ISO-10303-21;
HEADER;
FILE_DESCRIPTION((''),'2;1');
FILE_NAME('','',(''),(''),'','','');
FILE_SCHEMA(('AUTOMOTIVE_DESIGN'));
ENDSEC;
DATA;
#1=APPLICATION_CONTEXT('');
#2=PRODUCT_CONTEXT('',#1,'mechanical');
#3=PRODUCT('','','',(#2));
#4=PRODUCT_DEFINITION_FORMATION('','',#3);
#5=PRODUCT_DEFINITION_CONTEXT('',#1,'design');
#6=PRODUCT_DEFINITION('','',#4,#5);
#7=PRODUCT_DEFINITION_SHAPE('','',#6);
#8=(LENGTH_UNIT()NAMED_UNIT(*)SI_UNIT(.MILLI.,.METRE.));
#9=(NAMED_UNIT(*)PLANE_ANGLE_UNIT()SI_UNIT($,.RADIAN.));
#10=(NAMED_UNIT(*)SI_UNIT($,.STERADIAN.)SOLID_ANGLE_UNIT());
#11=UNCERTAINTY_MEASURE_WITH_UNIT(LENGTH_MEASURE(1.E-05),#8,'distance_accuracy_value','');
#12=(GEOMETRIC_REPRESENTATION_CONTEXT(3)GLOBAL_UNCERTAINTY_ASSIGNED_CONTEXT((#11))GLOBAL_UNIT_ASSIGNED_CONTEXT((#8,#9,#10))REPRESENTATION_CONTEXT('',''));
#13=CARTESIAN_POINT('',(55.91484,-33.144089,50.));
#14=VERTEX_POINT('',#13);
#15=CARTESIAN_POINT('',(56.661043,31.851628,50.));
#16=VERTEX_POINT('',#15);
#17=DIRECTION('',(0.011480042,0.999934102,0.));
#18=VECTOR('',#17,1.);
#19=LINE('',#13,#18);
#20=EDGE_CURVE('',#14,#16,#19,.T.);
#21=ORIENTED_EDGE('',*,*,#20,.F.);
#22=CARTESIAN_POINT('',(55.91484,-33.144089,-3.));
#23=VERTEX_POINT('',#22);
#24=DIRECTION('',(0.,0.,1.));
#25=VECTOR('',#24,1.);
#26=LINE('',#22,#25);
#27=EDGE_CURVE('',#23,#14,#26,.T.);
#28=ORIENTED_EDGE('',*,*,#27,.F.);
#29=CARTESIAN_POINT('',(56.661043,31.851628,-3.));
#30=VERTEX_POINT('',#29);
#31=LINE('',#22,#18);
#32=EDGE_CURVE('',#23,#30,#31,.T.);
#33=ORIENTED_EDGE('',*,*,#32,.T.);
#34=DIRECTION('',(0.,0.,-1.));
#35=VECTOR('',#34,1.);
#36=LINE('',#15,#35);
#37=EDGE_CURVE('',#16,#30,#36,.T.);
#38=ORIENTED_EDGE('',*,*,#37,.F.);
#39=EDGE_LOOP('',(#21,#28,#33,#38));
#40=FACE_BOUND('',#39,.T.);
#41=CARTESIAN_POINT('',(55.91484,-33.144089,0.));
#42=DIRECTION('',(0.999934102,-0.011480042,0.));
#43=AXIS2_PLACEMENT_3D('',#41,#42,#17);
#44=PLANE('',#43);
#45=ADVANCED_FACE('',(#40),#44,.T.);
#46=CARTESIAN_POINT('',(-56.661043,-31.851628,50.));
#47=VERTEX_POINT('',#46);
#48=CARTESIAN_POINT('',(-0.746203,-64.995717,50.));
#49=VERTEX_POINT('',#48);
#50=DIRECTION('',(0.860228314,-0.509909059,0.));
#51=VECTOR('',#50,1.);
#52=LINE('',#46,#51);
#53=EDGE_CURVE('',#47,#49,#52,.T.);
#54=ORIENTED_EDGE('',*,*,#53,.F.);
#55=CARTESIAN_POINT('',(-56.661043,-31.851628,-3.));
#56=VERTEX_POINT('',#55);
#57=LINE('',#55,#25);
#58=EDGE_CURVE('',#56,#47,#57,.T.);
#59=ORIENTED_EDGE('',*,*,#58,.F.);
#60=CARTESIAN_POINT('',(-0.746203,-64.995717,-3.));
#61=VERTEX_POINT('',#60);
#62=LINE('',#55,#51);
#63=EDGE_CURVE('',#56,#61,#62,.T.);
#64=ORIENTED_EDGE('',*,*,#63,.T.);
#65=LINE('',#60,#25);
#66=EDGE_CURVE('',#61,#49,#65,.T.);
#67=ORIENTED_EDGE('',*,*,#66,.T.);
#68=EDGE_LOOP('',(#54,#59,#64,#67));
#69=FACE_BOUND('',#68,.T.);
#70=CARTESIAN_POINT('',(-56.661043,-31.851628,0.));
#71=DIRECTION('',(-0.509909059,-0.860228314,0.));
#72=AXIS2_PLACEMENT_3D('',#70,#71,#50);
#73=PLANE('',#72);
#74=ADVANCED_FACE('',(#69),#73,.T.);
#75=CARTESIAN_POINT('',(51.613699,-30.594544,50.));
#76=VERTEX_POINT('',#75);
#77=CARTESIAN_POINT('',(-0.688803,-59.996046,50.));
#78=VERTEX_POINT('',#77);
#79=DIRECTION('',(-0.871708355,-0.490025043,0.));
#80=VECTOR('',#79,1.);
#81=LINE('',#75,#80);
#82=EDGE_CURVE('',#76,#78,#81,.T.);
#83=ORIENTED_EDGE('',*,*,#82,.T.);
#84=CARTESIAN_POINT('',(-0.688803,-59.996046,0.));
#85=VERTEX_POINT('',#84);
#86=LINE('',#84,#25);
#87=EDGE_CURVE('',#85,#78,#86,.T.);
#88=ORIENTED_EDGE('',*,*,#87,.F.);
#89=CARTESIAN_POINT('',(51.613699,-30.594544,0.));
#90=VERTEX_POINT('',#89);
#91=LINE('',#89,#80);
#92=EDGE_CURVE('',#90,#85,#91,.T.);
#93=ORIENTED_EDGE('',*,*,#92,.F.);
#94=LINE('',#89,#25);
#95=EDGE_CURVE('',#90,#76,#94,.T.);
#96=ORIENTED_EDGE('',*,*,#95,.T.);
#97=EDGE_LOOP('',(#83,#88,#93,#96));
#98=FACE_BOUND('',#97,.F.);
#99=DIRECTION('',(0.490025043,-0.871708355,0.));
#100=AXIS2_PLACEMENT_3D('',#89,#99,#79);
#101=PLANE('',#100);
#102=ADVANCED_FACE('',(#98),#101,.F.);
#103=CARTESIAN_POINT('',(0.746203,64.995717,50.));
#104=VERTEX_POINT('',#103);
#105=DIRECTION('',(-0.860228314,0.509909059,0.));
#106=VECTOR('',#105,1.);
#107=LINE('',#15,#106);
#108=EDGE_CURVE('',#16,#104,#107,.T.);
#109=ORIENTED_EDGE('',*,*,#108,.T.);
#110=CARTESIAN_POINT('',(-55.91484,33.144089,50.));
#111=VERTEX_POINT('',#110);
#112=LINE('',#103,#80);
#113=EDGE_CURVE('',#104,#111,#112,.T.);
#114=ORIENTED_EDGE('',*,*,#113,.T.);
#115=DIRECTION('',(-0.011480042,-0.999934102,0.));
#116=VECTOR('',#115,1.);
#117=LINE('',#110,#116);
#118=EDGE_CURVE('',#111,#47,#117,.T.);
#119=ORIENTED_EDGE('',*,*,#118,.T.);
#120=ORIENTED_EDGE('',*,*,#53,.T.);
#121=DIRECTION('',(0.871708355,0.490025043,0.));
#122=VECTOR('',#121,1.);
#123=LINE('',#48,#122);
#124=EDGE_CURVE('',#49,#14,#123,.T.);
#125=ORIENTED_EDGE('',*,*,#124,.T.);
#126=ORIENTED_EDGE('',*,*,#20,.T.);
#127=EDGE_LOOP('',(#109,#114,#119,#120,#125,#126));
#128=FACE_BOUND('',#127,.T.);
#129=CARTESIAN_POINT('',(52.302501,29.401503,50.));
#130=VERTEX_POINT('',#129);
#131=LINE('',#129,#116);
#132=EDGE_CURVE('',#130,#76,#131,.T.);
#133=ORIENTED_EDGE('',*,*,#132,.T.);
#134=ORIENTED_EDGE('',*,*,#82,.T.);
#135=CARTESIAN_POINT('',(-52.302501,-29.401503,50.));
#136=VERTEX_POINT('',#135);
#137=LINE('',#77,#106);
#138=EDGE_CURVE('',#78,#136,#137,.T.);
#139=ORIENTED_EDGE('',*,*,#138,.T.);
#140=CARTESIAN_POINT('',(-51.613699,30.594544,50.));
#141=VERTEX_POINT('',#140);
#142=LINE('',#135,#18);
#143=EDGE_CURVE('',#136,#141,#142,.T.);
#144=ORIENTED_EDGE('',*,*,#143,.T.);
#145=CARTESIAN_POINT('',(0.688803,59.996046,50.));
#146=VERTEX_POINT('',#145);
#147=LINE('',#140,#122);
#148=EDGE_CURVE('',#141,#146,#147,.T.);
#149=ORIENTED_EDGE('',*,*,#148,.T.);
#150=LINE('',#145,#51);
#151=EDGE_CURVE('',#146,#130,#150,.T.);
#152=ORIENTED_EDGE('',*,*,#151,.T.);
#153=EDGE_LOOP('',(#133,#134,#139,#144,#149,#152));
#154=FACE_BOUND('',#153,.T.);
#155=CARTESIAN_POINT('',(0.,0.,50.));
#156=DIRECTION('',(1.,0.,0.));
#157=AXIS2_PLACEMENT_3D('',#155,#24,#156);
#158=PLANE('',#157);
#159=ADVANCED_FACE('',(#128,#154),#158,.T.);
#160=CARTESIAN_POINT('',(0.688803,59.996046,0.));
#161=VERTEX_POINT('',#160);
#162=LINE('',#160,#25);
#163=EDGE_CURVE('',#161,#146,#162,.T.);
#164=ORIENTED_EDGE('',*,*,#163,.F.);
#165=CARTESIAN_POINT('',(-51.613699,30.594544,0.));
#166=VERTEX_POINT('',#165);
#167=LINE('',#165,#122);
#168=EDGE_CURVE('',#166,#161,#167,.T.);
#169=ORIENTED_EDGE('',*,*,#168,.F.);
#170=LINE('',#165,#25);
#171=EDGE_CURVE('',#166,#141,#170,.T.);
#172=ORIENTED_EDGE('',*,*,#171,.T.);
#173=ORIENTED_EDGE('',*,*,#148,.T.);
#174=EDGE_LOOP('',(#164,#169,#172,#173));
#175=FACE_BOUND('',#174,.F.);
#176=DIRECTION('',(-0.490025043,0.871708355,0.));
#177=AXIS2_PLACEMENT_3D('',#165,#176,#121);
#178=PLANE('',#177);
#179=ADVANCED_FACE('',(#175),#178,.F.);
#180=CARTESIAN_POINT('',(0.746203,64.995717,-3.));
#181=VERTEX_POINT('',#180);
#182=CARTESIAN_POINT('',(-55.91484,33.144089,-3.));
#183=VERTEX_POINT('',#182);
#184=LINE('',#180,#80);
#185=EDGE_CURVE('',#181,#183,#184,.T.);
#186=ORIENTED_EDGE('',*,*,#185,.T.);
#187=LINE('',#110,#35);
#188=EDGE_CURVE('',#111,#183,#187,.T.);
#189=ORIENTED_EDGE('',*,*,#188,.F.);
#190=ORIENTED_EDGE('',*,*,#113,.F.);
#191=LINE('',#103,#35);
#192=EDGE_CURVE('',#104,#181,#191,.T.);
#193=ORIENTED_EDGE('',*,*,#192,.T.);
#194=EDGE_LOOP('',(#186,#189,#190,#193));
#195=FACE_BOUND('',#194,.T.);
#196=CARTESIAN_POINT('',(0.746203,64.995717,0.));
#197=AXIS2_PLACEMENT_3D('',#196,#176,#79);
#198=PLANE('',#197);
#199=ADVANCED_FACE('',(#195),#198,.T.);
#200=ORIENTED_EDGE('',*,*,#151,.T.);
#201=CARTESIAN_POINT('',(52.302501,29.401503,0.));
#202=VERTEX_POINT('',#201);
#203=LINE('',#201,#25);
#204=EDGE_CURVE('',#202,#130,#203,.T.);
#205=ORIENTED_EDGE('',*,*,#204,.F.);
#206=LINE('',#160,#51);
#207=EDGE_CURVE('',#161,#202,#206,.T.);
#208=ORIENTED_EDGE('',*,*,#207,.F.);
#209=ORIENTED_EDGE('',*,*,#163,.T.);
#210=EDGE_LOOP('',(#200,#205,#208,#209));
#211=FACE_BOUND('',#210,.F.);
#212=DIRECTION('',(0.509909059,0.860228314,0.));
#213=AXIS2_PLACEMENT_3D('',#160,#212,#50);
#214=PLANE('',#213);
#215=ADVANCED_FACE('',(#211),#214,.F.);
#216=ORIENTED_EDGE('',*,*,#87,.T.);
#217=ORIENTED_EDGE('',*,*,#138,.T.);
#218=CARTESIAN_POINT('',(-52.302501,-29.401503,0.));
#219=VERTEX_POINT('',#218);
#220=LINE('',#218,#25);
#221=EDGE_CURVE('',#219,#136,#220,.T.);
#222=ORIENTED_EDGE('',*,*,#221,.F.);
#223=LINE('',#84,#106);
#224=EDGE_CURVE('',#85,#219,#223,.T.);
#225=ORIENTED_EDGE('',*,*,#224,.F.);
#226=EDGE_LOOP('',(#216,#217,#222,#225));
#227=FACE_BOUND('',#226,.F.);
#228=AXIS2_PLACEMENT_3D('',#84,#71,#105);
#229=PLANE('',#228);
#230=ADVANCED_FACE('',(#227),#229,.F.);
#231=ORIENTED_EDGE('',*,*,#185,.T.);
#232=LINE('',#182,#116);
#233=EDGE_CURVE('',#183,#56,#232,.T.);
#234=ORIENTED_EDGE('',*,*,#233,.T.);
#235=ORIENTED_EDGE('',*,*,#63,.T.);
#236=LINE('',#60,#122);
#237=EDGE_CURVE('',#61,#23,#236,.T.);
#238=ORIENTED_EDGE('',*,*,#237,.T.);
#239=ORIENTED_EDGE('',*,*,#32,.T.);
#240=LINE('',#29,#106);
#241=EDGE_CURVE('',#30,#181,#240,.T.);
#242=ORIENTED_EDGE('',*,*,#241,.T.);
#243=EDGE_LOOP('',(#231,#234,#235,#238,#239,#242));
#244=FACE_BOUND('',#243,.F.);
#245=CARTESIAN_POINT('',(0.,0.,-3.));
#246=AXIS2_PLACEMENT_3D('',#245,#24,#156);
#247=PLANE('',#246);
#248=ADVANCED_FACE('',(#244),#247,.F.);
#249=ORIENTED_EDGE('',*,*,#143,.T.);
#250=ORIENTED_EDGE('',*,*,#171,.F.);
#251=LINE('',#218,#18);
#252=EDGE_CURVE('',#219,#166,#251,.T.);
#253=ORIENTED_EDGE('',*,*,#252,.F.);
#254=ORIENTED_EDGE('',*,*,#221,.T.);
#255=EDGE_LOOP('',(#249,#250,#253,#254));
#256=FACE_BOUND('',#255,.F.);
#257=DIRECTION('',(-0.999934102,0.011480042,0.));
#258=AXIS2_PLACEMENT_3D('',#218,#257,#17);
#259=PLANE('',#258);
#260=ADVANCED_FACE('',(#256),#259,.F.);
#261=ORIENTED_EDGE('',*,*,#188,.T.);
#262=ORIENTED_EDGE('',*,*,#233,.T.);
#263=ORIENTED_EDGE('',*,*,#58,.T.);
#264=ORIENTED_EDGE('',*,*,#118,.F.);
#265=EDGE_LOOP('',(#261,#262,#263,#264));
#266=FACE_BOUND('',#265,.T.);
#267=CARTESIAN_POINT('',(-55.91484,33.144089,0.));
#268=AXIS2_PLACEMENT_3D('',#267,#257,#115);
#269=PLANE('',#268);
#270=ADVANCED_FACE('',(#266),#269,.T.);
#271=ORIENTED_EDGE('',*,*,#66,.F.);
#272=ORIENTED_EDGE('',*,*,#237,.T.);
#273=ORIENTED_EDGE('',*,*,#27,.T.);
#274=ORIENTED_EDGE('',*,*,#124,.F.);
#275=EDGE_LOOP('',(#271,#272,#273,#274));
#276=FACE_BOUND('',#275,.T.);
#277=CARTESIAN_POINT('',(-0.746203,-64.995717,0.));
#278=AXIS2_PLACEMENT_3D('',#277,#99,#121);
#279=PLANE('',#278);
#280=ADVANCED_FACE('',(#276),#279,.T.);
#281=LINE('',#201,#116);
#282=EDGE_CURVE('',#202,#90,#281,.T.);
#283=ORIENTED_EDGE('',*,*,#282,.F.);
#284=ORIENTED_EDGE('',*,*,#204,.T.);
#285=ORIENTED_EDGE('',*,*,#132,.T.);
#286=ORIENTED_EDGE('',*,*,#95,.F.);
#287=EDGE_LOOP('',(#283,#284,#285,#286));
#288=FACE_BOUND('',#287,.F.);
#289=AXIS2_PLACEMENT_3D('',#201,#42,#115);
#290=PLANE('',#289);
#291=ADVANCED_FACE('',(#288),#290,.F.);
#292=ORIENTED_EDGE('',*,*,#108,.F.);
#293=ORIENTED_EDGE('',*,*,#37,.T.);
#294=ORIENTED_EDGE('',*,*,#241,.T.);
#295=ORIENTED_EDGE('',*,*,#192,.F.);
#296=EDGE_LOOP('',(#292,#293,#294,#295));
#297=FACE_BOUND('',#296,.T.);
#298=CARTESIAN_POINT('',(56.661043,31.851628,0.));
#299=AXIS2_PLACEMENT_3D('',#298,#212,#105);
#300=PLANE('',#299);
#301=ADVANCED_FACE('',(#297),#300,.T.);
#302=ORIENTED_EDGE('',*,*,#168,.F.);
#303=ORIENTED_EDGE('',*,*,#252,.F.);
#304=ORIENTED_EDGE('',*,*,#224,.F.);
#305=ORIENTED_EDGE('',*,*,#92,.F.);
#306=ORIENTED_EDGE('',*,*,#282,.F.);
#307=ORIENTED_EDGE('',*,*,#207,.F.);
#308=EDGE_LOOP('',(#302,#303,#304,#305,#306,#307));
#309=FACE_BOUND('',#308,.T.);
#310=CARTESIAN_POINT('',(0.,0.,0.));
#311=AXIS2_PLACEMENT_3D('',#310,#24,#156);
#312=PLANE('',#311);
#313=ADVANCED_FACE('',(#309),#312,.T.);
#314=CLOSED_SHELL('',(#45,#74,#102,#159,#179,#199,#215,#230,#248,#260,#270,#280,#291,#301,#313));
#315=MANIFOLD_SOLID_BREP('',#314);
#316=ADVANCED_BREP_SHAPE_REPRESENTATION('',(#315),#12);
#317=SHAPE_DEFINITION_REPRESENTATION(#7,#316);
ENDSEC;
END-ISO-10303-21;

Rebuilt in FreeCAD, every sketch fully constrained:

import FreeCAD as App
import Part
import Sketcher

doc = App.newDocument("Part")
params = doc.addObject("Spreadsheet::Sheet", "Params")
for row, (alias, value) in enumerate([
    ("sketch1_length", "65 mm"),
    ("sketch1_length2", "60 mm"),
    ("pad1_length", "50 mm"),
    ("sketch2_length", "65 mm"),
    ("pad2_length", "3 mm"),
], start=1):
    params.set(f"A{row}", alias)
    params.set(f"B{row}", "=" + value)
    params.setAlias(f"B{row}", alias)

body = doc.addObject("PartDesign::Body", "Body")

# Sketch on XY plane
sketch1 = body.newObject("Sketcher::SketchObject", "Sketch")
sketch1.AttachmentSupport = (doc.getObject("XY_Plane"), [""])
sketch1.MapMode = "FlatFace"
sketch1.addGeometry(Part.LineSegment(App.Vector(-55.91484, 33.144089, 0), App.Vector(-56.661043, -31.851628, 0)), False)
sketch1.addGeometry(Part.LineSegment(App.Vector(-56.661043, -31.851628, 0), App.Vector(-0.746203, -64.995717, 0)), False)
sketch1.addGeometry(Part.LineSegment(App.Vector(-0.746203, -64.995717, 0), App.Vector(55.91484, -33.144089, 0)), False)
sketch1.addGeometry(Part.LineSegment(App.Vector(55.91484, -33.144089, 0), App.Vector(56.661043, 31.851628, 0)), False)
sketch1.addGeometry(Part.LineSegment(App.Vector(56.661043, 31.851628, 0), App.Vector(0.746203, 64.995717, 0)), False)
sketch1.addGeometry(Part.LineSegment(App.Vector(0.746203, 64.995717, 0), App.Vector(-55.91484, 33.144089, 0)), False)
sketch1.addGeometry(Part.LineSegment(App.Vector(52.302501, 29.401503, 0), App.Vector(51.613699, -30.594544, 0)), False)
sketch1.addGeometry(Part.LineSegment(App.Vector(51.613699, -30.594544, 0), App.Vector(-0.688803, -59.996046, 0)), False)
sketch1.addGeometry(Part.LineSegment(App.Vector(-0.688803, -59.996046, 0), App.Vector(-52.302501, -29.401503, 0)), False)
sketch1.addGeometry(Part.LineSegment(App.Vector(-52.302501, -29.401503, 0), App.Vector(-51.613699, 30.594544, 0)), False)
sketch1.addGeometry(Part.LineSegment(App.Vector(-51.613699, 30.594544, 0), App.Vector(0.688803, 59.996046, 0)), False)
sketch1.addGeometry(Part.LineSegment(App.Vector(0.688803, 59.996046, 0), App.Vector(52.302501, 29.401503, 0)), False)
sketch1.addConstraint(Sketcher.Constraint("Coincident", 0, 2, 1, 1))
sketch1.addConstraint(Sketcher.Constraint("Coincident", 1, 2, 2, 1))
sketch1.addConstraint(Sketcher.Constraint("Coincident", 2, 2, 3, 1))
sketch1.addConstraint(Sketcher.Constraint("Coincident", 3, 2, 4, 1))
sketch1.addConstraint(Sketcher.Constraint("Coincident", 4, 2, 5, 1))
sketch1.addConstraint(Sketcher.Constraint("Coincident", 5, 2, 0, 1))
sketch1.addConstraint(Sketcher.Constraint("Coincident", 6, 2, 7, 1))
sketch1.addConstraint(Sketcher.Constraint("Coincident", 7, 2, 8, 1))
sketch1.addConstraint(Sketcher.Constraint("Coincident", 8, 2, 9, 1))
sketch1.addConstraint(Sketcher.Constraint("Coincident", 9, 2, 10, 1))
sketch1.addConstraint(Sketcher.Constraint("Coincident", 10, 2, 11, 1))
sketch1.addConstraint(Sketcher.Constraint("Coincident", 11, 2, 6, 1))
sketch1.addConstraint(Sketcher.Constraint("Symmetric", 0, 2, 3, 2, -1, 1))
sketch1.addConstraint(Sketcher.Constraint("Symmetric", 1, 2, 4, 2, -1, 1))
sketch1.addConstraint(Sketcher.Constraint("Symmetric", 2, 2, 5, 2, -1, 1))
sketch1.addConstraint(Sketcher.Constraint("Symmetric", 6, 2, 9, 2, -1, 1))
sketch1.addConstraint(Sketcher.Constraint("Symmetric", 7, 2, 10, 2, -1, 1))
sketch1.addConstraint(Sketcher.Constraint("Symmetric", 8, 2, 11, 2, -1, 1))
sketch1.addConstraint(Sketcher.Constraint("Parallel", 3, 6))
sketch1.addConstraint(Sketcher.Constraint("Parallel", 5, 7))
sketch1.addConstraint(Sketcher.Constraint("Parallel", 4, 8))
sketch1.addConstraint(Sketcher.Constraint("Equal", 0, 1))
sketch1.addConstraint(Sketcher.Constraint("Equal", 1, 2))
sketch1.addConstraint(Sketcher.Constraint("Equal", 6, 7))
sketch1.addConstraint(Sketcher.Constraint("Equal", 7, 8))
sketch1.addConstraint(Sketcher.Constraint("Distance", 0, 65.0))
sketch1.addConstraint(Sketcher.Constraint("Distance", 6, 60.0))
sketch1.addConstraint(Sketcher.Constraint("DistanceX", -1, 1, 6, 2, 51.613699))
sketch1.addConstraint(Sketcher.Constraint("DistanceX", 8, 2, -1, 1, 52.302501))
sketch1.addConstraint(Sketcher.Constraint("DistanceX", 1, 2, 6, 2, 52.359902))
sketch1.setExpression("Constraints[25]", "Params.sketch1_length")
sketch1.setExpression("Constraints[26]", "Params.sketch1_length2")
pad1 = body.newObject("PartDesign::Pad", "Pad")
pad1.Profile = sketch1
pad1.setExpression("Length", "Params.pad1_length")

# Sketch on XY plane
sketch2 = body.newObject("Sketcher::SketchObject", "Sketch001")
sketch2.AttachmentSupport = (doc.getObject("XY_Plane"), [""])
sketch2.MapMode = "FlatFace"
sketch2.addGeometry(Part.LineSegment(App.Vector(-55.91484, 33.144089, 0), App.Vector(-56.661043, -31.851628, 0)), False)
sketch2.addGeometry(Part.LineSegment(App.Vector(-56.661043, -31.851628, 0), App.Vector(-0.746203, -64.995717, 0)), False)
sketch2.addGeometry(Part.LineSegment(App.Vector(-0.746203, -64.995717, 0), App.Vector(55.91484, -33.144089, 0)), False)
sketch2.addGeometry(Part.LineSegment(App.Vector(55.91484, -33.144089, 0), App.Vector(56.661043, 31.851628, 0)), False)
sketch2.addGeometry(Part.LineSegment(App.Vector(56.661043, 31.851628, 0), App.Vector(0.746203, 64.995717, 0)), False)
sketch2.addGeometry(Part.LineSegment(App.Vector(0.746203, 64.995717, 0), App.Vector(-55.91484, 33.144089, 0)), False)
sketch2.addConstraint(Sketcher.Constraint("Coincident", 0, 2, 1, 1))
sketch2.addConstraint(Sketcher.Constraint("Coincident", 1, 2, 2, 1))
sketch2.addConstraint(Sketcher.Constraint("Coincident", 2, 2, 3, 1))
sketch2.addConstraint(Sketcher.Constraint("Coincident", 3, 2, 4, 1))
sketch2.addConstraint(Sketcher.Constraint("Coincident", 4, 2, 5, 1))
sketch2.addConstraint(Sketcher.Constraint("Coincident", 5, 2, 0, 1))
sketch2.addConstraint(Sketcher.Constraint("Symmetric", 0, 2, 3, 2, -1, 1))
sketch2.addConstraint(Sketcher.Constraint("Symmetric", 1, 2, 4, 2, -1, 1))
sketch2.addConstraint(Sketcher.Constraint("Symmetric", 2, 2, 5, 2, -1, 1))
sketch2.addConstraint(Sketcher.Constraint("Equal", 0, 1))
sketch2.addConstraint(Sketcher.Constraint("Equal", 1, 2))
sketch2.addConstraint(Sketcher.Constraint("Distance", 0, 65.0))
sketch2.addConstraint(Sketcher.Constraint("DistanceX", -1, 1, 2, 2, 55.91484))
sketch2.addConstraint(Sketcher.Constraint("DistanceY", 2, 2, -1, 1, 33.144089))
sketch2.addConstraint(Sketcher.Constraint("DistanceX", 0, 2, 1, 2, 55.91484))
sketch2.setExpression("Constraints[11]", "Params.sketch2_length")
pad2 = body.newObject("PartDesign::Pad", "Pad001")
pad2.Profile = sketch2
pad2.setExpression("Length", "Params.pad2_length")
pad2.Reversed = True

doc.recompute()
